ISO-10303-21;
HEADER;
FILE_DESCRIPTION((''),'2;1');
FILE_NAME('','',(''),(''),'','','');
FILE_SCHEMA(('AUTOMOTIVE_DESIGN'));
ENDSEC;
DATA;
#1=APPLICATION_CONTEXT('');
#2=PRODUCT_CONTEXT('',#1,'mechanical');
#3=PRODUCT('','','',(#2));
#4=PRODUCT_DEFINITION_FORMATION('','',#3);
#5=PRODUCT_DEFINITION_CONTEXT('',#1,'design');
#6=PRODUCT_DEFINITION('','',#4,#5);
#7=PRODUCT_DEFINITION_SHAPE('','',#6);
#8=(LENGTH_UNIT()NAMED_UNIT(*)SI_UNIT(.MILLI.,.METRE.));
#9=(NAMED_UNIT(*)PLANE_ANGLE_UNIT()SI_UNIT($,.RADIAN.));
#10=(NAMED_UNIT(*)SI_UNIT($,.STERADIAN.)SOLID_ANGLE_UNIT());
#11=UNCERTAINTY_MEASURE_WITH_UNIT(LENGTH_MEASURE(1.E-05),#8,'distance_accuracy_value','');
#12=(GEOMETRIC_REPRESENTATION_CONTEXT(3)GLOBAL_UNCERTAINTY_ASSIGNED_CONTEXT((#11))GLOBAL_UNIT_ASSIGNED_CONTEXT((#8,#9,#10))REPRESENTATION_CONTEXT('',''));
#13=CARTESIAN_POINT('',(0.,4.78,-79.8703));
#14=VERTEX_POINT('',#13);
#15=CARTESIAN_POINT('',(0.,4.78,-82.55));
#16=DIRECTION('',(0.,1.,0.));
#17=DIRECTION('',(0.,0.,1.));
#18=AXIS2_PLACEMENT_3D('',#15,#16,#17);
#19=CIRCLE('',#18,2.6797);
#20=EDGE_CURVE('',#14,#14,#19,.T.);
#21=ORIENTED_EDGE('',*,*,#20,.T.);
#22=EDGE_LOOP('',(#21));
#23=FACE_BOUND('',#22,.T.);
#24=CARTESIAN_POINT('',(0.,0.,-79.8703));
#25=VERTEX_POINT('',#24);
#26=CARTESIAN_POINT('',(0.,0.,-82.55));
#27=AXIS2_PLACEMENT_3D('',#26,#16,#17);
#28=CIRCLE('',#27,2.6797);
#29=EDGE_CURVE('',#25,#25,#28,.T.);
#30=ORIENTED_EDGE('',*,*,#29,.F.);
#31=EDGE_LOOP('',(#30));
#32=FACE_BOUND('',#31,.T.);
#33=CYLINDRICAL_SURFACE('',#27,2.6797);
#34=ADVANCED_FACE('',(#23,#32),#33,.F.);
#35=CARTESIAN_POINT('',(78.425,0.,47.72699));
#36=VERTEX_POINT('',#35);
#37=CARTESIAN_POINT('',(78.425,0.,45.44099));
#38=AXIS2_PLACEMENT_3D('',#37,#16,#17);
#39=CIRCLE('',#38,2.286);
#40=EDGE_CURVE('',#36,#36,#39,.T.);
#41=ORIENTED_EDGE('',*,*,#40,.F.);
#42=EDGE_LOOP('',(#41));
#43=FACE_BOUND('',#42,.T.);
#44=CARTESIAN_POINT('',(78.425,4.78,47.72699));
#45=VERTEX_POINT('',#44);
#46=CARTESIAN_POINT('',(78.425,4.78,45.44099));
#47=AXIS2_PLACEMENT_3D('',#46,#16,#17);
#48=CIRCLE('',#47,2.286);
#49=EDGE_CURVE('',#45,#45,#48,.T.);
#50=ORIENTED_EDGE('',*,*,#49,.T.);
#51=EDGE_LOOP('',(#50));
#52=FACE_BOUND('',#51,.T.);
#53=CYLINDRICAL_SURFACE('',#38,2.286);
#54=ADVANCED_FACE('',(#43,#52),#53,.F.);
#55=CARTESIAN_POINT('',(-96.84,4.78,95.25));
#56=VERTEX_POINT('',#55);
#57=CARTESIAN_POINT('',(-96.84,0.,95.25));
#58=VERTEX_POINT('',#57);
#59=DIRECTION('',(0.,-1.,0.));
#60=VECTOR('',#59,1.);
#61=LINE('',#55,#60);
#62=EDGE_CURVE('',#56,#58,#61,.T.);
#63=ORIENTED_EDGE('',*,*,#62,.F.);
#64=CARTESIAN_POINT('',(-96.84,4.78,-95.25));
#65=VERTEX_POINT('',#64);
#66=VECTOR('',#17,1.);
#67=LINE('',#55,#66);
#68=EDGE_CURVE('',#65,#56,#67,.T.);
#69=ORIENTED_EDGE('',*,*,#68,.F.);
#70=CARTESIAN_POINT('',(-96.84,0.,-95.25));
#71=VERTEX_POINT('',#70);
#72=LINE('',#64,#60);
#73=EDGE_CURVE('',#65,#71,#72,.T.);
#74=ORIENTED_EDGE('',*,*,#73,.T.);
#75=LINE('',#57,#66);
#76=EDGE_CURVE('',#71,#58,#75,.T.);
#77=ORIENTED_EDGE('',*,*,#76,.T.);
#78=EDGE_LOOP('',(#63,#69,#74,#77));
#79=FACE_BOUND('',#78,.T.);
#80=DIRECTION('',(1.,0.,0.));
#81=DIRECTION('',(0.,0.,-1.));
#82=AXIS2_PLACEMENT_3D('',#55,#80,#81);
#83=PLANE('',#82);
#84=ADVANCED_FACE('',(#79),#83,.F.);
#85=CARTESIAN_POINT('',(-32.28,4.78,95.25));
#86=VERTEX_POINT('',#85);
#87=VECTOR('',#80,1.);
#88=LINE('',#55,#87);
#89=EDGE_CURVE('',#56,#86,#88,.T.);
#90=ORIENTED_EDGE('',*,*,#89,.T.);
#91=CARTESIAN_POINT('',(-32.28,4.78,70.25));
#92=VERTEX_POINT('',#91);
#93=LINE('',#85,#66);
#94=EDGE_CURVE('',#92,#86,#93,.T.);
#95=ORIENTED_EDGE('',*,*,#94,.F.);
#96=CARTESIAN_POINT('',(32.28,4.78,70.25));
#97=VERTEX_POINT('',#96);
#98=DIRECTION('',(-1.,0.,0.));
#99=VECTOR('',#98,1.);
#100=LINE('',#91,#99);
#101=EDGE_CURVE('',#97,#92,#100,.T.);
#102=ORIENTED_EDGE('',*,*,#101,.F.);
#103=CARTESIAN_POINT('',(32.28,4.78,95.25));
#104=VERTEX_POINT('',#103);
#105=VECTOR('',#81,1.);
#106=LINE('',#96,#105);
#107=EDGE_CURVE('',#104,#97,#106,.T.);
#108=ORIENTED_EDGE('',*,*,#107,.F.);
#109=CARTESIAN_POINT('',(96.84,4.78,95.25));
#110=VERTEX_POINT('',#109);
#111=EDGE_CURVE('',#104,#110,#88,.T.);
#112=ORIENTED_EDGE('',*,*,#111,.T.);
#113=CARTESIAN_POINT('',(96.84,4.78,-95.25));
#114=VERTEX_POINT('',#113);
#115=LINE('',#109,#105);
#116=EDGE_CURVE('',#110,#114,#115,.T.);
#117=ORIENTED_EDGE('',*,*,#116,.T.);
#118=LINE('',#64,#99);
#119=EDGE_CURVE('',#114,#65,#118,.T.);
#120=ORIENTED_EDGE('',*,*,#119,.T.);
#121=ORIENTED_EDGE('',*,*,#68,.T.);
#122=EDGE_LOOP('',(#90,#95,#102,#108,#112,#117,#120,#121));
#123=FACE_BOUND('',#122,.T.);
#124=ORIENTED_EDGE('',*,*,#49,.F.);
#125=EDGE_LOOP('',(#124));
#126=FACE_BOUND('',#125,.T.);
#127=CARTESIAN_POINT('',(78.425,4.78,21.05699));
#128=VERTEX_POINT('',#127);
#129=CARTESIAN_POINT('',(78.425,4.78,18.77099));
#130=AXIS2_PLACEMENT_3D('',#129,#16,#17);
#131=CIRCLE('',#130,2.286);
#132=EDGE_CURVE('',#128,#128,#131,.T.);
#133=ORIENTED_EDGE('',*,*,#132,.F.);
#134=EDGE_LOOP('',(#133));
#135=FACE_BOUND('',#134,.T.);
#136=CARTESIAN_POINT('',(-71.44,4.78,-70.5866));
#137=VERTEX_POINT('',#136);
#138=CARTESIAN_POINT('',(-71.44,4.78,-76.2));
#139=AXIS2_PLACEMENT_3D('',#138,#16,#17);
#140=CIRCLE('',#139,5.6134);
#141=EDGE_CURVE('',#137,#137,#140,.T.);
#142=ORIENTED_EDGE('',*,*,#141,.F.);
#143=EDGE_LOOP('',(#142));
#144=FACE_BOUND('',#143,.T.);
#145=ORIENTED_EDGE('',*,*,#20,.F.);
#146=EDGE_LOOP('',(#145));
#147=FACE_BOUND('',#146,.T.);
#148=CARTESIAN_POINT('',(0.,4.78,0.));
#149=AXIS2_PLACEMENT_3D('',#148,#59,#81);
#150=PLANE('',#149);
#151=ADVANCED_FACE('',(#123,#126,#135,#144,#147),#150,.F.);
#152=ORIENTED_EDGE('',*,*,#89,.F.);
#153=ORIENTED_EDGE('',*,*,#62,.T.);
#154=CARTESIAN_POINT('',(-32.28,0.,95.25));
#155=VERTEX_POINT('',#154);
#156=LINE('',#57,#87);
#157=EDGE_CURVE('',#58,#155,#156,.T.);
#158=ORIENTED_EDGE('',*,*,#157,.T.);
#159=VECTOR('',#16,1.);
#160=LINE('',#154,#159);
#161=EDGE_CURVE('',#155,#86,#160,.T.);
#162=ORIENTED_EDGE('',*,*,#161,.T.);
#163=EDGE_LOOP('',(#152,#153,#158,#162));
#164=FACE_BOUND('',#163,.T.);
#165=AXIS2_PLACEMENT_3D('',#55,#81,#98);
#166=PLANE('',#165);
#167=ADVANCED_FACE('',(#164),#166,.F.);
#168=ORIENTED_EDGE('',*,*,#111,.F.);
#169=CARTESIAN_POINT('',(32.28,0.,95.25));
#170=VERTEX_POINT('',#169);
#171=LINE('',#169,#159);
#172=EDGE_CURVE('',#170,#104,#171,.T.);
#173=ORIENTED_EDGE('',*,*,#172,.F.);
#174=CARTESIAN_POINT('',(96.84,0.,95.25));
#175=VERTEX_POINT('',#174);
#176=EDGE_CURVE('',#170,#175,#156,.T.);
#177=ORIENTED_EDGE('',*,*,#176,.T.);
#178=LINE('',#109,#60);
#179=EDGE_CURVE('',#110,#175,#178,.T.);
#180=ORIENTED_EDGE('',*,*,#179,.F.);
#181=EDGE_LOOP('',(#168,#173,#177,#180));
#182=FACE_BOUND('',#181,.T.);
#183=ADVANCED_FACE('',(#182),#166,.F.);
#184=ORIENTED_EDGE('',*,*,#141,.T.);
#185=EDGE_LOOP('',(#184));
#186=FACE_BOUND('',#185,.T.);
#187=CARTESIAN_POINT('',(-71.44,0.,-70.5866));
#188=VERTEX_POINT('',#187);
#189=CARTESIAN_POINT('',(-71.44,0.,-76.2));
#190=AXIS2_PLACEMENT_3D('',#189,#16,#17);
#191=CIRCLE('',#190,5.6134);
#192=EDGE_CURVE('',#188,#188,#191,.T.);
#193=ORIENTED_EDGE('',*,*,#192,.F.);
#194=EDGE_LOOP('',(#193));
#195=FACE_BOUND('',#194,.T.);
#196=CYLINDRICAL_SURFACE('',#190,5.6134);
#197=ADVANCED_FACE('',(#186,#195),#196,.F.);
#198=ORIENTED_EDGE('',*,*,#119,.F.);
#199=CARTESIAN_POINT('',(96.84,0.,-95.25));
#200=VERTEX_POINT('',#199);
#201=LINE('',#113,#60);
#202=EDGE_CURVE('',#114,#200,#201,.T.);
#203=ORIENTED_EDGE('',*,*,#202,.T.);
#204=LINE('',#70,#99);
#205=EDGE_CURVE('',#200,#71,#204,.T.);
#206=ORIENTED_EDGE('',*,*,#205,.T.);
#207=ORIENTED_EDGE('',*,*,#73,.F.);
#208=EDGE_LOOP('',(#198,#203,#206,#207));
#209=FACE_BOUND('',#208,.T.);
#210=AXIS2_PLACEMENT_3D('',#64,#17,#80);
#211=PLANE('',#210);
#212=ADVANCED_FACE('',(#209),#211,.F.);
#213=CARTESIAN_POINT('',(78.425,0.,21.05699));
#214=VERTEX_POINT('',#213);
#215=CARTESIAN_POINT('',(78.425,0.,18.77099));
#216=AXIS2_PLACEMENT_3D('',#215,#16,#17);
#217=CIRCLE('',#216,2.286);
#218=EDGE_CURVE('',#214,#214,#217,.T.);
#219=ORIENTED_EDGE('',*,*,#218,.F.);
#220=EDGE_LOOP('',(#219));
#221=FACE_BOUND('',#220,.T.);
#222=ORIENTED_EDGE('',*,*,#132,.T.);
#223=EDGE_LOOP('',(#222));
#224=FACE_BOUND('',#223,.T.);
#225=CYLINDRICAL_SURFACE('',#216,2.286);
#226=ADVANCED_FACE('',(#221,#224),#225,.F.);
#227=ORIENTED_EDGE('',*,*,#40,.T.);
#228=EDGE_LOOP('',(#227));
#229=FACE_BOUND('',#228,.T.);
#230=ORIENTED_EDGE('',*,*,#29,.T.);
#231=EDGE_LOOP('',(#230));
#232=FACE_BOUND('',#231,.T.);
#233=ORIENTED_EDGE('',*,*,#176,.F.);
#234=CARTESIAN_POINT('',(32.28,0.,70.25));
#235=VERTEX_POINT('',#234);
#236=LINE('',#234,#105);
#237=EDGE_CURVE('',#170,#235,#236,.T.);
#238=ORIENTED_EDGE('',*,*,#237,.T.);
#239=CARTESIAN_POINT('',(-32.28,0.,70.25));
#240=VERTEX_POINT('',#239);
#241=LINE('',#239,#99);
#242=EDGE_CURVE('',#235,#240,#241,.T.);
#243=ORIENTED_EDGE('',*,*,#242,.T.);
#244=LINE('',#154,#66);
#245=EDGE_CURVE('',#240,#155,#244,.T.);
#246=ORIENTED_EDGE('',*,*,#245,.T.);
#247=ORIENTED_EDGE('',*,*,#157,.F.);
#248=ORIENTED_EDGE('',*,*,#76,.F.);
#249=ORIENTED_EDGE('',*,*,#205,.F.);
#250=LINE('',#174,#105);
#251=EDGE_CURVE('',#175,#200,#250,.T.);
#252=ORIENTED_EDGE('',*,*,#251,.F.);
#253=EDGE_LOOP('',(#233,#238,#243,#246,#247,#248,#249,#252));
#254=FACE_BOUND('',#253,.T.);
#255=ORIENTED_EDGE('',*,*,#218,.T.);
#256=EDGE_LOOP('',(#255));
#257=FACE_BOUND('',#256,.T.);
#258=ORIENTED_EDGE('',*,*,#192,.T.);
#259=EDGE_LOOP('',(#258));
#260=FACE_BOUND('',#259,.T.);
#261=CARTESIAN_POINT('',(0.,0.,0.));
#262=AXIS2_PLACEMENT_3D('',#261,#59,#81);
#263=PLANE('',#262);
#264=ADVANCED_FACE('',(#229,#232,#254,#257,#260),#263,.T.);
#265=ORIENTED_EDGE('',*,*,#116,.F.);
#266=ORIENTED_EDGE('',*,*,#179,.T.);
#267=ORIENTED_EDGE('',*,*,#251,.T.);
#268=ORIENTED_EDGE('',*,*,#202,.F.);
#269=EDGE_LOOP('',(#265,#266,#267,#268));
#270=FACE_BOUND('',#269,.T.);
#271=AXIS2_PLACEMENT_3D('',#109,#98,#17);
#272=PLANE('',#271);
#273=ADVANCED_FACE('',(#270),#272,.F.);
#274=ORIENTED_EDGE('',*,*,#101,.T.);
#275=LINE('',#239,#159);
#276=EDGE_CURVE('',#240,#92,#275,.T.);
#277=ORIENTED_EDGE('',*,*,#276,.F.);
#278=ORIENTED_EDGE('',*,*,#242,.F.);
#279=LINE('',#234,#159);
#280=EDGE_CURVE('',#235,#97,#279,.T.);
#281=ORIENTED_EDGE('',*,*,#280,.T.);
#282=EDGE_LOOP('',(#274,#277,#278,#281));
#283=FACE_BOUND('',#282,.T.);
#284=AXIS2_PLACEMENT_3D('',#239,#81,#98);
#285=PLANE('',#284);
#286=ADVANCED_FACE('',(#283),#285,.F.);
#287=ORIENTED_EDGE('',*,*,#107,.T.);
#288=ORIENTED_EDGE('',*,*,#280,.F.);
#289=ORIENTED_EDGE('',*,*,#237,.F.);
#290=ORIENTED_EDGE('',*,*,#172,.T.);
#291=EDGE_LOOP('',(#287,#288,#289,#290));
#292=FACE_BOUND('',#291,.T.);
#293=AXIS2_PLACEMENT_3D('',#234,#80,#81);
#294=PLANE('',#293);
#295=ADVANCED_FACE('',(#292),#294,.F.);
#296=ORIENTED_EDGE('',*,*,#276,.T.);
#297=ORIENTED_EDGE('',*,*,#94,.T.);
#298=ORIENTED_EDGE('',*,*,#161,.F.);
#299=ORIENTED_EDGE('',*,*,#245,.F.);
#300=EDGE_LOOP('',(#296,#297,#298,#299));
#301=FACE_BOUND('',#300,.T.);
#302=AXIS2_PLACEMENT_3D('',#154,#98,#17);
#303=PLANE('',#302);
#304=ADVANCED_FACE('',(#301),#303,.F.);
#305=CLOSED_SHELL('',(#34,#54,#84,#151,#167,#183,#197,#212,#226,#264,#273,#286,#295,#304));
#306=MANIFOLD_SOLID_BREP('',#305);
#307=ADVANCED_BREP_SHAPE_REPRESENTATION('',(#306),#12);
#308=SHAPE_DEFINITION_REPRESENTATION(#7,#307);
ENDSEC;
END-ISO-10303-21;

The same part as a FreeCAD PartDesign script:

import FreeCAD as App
import Part
import Sketcher
from FreeCAD import Vector
Q = App.Units.Quantity

doc = App.newDocument("Part")
body = doc.addObject("PartDesign::Body", "Body")

sketch1 = doc.addObject("Sketcher::SketchObject", "Sketch")
body.addObject(sketch1)
sketch1.AttachmentSupport = (doc.XZ_Plane, [""])
sketch1.MapMode = "FlatFace"
sketch1.addGeometry(Part.LineSegment(Vector(-97, -95, 0), Vector(-97, 95, 0)), False)
sketch1.addGeometry(Part.LineSegment(Vector(-97, 95, 0), Vector(97, 95, 0)), False)
sketch1.addGeometry(Part.LineSegment(Vector(97, 95, 0), Vector(97, -95, 0)), False)
sketch1.addGeometry(Part.LineSegment(Vector(97, -95, 0), Vector(-97, -95, 0)), False)
sketch1.addConstraint(Sketcher.Constraint("Coincident", 0, 2, 1, 1))
sketch1.addConstraint(Sketcher.Constraint("Coincident", 1, 2, 2, 1))
sketch1.addConstraint(Sketcher.Constraint("Coincident", 2, 2, 3, 1))
sketch1.addConstraint(Sketcher.Constraint("Coincident", 3, 2, 0, 1))
sketch1.addConstraint(Sketcher.Constraint("Vertical", 0))
sketch1.addConstraint(Sketcher.Constraint("Horizontal", 1))
sketch1.addConstraint(Sketcher.Constraint("Vertical", 2))
sketch1.addConstraint(Sketcher.Constraint("Horizontal", 3))
sketch1.addConstraint(Sketcher.Constraint("Symmetric", 0, 2, 2, 2, -1, 1))
sketch1.addConstraint(Sketcher.Constraint("DistanceY", 0, 1, 0, 2, Q("7.5 in")))
sketch1.addConstraint(Sketcher.Constraint("DistanceX", 1, 1, 1, 2, Q("193.68 mm")))
pad1 = doc.addObject("PartDesign::Pad", "Pad")
body.addObject(pad1)
pad1.Profile = sketch1
pad1.Length = 4.78
pad1.Reversed = True

sketch2 = doc.addObject("Sketcher::SketchObject", "Sketch001")
body.addObject(sketch2)
sketch2.AttachmentSupport = (doc.XZ_Plane, [""])
sketch2.MapMode = "FlatFace"
sketch2.AttachmentOffset = App.Placement(Vector(0, 0, -4.78), App.Rotation())
sketch2.addGeometry(Part.Circle(Vector(0, -82.5, 0), Vector(0, 0, 1), 2.7), False)
sketch2.addConstraint(Sketcher.Constraint("PointOnObject", 0, 3, -2))
sketch2.addConstraint(Sketcher.Constraint("Diameter", 0, Q("0.211 in")))
sketch2.addConstraint(Sketcher.Constraint("DistanceY", 0, 3, -1, 1, Q("3.25 in")))
pocket1 = doc.addObject("PartDesign::Pocket", "Pocket")
body.addObject(pocket1)
pocket1.Profile = sketch2
pocket1.Type = "ThroughAll"
pocket1.Reversed = True

sketch3 = doc.addObject("Sketcher::SketchObject", "Sketch002")
body.addObject(sketch3)
sketch3.AttachmentSupport = (doc.XZ_Plane, [""])
sketch3.MapMode = "FlatFace"
sketch3.AttachmentOffset = App.Placement(Vector(0, 0, -4.78), App.Rotation())
sketch3.addGeometry(Part.LineSegment(Vector(-32, 95, 0), Vector(32, 95, 0)), False)
sketch3.addGeometry(Part.LineSegment(Vector(32, 95, 0), Vector(32, 70, 0)), False)
sketch3.addGeometry(Part.LineSegment(Vector(32, 70, 0), Vector(-32, 70, 0)), False)
sketch3.addGeometry(Part.LineSegment(Vector(-32, 70, 0), Vector(-32, 95, 0)), False)
sketch3.addConstraint(Sketcher.Constraint("Coincident", 0, 2, 1, 1))
sketch3.addConstraint(Sketcher.Constraint("Coincident", 1, 2, 2, 1))
sketch3.addConstraint(Sketcher.Constraint("Coincident", 2, 2, 3, 1))
sketch3.addConstraint(Sketcher.Constraint("Coincident", 3, 2, 0, 1))
sketch3.addConstraint(Sketcher.Constraint("Horizontal", 0))
sketch3.addConstraint(Sketcher.Constraint("Vertical", 1))
sketch3.addConstraint(Sketcher.Constraint("Horizontal", 2))
sketch3.addConstraint(Sketcher.Constraint("Vertical", 3))
sketch3.addConstraint(Sketcher.Constraint("DistanceY", -1, 1, 0, 2, Q("3.75 in")))
sketch3.addConstraint(Sketcher.Constraint("DistanceX", 0, 1, 0, 2, Q("64.56 mm")))
sketch3.addConstraint(Sketcher.Constraint("DistanceY", 1, 2, 1, 1, Q("25 mm")))
sketch3.addConstraint(Sketcher.Constraint("DistanceX", -1, 1, 0, 2, Q("32.28 mm")))
pocket2 = doc.addObject("PartDesign::Pocket", "Pocket001")
body.addObject(pocket2)
pocket2.Profile = sketch3
pocket2.Type = "ThroughAll"
pocket2.Reversed = True

sketch4 = doc.addObject("Sketcher::SketchObject", "Sketch003")
body.addObject(sketch4)
sketch4.AttachmentSupport = (doc.XZ_Plane, [""])
sketch4.MapMode = "FlatFace"
sketch4.AttachmentOffset = App.Placement(Vector(0, 0, -4.78), App.Rotation())
sketch4.addGeometry(Part.Circle(Vector(78.4, 18.8, 0), Vector(0, 0, 1), 2.3), False)
sketch4.addGeometry(Part.Circle(Vector(78.4, 45.4, 0), Vector(0, 0, 1), 2.3), False)
sketch4.addGeometry(Part.Circle(Vector(-71.4, -76.2, 0), Vector(0, 0, 1), 5.6), False)
sketch4.addConstraint(Sketcher.Constraint("Equal", 0, 1))
sketch4.addConstraint(Sketcher.Constraint("Vertical", 0, 3, 1, 3))
sketch4.addConstraint(Sketcher.Constraint("Diameter", 0, Q("0.18 in")))
sketch4.addConstraint(Sketcher.Constraint("Diameter", 2, Q("0.442 in")))
sketch4.addConstraint(Sketcher.Constraint("DistanceY", 2, 3, -1, 1, Q("3 in")))
sketch4.addConstraint(Sketcher.Constraint("DistanceY", 0, 3, 1, 3, Q("1.05 in")))
sketch4.addConstraint(Sketcher.Constraint("DistanceX", -1, 1, 0, 3, Q("78.425 mm")))
sketch4.addConstraint(Sketcher.Constraint("DistanceX", 2, 3, -1, 1, Q("71.44 mm")))
sketch4.addConstraint(Sketcher.Constraint("DistanceY", -1, 1, 0, 3, Q("18.77099 mm")))
pocket3 = doc.addObject("PartDesign::Pocket", "Pocket002")
body.addObject(pocket3)
pocket3.Profile = sketch4
pocket3.Type = "ThroughAll"
pocket3.Reversed = True

doc.recompute()
